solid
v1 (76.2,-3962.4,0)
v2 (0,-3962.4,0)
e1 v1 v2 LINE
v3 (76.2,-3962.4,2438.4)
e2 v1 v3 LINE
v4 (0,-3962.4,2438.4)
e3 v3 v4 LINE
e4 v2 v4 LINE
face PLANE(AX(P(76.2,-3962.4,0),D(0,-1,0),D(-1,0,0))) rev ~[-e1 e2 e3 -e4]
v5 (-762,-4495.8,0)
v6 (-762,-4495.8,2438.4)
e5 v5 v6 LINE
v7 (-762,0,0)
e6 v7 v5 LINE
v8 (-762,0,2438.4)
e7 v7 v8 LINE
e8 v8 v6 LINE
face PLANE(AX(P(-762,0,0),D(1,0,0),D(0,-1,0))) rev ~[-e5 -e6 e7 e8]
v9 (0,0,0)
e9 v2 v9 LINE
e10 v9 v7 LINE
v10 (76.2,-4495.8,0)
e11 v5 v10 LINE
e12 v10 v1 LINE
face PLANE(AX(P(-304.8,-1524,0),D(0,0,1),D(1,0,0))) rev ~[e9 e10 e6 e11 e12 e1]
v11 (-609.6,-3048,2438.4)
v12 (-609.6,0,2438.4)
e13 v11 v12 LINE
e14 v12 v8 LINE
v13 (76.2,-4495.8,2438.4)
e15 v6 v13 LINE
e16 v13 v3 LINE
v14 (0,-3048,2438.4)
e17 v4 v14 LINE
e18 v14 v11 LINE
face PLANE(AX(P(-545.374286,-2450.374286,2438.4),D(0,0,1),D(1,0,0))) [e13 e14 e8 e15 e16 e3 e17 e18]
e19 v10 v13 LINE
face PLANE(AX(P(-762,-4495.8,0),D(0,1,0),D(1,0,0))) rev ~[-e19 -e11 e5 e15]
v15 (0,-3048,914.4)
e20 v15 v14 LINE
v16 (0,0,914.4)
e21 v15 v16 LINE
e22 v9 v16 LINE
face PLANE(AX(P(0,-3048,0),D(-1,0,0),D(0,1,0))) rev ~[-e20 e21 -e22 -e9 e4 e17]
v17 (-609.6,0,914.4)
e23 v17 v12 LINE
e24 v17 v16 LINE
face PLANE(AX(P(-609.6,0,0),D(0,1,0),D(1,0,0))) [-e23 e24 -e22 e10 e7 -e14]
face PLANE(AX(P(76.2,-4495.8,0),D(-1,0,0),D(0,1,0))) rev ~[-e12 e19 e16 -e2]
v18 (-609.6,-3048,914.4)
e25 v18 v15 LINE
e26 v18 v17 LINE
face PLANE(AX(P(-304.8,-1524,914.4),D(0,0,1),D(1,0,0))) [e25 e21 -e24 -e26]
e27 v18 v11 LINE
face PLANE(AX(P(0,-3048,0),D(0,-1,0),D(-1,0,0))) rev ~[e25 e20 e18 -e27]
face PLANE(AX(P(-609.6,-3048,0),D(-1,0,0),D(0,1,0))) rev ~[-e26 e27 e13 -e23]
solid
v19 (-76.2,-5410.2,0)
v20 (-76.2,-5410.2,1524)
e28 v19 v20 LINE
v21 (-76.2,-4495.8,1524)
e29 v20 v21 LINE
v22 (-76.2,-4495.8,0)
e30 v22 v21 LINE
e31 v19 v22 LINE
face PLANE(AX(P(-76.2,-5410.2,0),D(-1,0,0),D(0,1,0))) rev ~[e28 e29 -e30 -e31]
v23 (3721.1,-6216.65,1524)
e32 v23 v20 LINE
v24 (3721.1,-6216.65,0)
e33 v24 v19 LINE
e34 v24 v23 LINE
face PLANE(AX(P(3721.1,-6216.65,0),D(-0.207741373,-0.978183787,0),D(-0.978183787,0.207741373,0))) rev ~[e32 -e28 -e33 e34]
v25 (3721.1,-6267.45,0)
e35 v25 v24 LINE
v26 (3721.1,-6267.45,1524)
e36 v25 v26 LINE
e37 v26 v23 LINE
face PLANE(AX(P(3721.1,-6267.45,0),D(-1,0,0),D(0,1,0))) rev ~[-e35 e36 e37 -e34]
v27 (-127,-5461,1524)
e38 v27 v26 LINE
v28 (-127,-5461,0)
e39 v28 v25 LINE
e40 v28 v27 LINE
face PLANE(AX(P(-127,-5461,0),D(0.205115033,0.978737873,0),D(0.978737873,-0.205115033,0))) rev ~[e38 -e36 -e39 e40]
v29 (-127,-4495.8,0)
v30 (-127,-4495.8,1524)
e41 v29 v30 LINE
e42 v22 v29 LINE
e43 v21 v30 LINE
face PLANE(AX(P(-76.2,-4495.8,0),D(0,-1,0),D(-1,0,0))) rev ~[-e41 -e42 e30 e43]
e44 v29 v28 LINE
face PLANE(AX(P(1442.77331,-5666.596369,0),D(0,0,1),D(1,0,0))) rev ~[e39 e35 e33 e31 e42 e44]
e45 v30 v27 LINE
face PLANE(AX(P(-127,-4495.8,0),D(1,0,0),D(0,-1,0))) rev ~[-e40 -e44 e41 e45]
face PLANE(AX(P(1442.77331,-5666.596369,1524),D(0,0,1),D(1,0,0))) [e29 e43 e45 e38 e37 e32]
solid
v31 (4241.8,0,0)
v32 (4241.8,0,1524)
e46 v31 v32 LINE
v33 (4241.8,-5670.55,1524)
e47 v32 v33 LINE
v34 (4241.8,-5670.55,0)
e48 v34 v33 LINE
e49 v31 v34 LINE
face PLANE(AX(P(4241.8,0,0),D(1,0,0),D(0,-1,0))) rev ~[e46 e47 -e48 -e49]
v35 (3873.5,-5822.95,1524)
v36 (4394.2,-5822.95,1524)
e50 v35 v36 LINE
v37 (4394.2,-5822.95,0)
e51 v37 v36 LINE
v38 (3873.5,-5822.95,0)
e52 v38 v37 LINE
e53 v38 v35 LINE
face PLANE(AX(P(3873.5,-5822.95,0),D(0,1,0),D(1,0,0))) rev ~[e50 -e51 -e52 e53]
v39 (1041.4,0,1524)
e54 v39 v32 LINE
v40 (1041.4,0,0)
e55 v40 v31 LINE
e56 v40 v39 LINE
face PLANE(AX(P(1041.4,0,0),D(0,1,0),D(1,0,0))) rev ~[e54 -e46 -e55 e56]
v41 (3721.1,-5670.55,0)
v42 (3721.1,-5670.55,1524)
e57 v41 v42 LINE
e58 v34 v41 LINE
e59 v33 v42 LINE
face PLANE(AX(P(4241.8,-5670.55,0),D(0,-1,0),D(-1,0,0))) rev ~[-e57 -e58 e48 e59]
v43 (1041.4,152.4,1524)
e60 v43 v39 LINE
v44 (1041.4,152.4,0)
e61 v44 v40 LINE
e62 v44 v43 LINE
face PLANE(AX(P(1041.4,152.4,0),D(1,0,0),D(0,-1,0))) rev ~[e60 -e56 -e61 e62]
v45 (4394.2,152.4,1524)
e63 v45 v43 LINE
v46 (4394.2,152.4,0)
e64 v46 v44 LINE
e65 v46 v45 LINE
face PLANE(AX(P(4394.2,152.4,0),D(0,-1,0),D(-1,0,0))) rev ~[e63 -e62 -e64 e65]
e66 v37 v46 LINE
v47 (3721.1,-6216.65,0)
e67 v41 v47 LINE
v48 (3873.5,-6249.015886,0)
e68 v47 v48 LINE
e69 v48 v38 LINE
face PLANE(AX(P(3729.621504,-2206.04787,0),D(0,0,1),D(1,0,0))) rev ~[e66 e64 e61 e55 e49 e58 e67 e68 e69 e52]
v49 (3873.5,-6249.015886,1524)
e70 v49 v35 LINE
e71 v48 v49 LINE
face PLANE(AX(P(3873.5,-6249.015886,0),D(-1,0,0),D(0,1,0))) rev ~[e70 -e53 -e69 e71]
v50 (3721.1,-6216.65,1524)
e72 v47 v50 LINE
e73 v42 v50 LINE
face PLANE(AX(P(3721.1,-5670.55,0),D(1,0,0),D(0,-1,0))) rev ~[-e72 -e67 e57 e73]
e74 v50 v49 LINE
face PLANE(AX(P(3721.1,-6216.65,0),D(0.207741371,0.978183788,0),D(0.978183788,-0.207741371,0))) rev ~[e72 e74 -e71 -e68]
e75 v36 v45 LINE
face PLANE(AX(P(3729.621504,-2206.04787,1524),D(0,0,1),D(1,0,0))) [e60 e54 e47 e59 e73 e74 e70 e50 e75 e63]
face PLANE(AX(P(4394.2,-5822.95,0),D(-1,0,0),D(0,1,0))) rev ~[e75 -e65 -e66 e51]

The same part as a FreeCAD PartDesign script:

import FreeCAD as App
import Part
import Sketcher
from FreeCAD import Vector
Q = App.Units.Quantity

doc = App.newDocument("Part")
body = doc.addObject("PartDesign::Body", "Body")

# Sketch on XY plane
sketch1 = doc.addObject("Sketcher::SketchObject", "Sketch")
body.addObject(sketch1)
sketch1.AttachmentSupport = (doc.XY_Plane, [""])
sketch1.MapMode = "FlatFace"
sketch1.addGeometry([
    Part.LineSegment(Vector(0, -3962, 0), Vector(0, -3048, 0)),  # 0
    Part.LineSegment(Vector(0, -3048, 0), Vector(-610, -3048, 0)),  # 1
    Part.LineSegment(Vector(-610, -3048, 0), Vector(-610, 0, 0)),  # 2
    Part.LineSegment(Vector(-610, 0, 0), Vector(-762, 0, 0)),  # 3
    Part.LineSegment(Vector(-762, 0, 0), Vector(-762, -4496, 0)),  # 4
    Part.LineSegment(Vector(-762, -4496, 0), Vector(76, -4496, 0)),  # 5
    Part.LineSegment(Vector(76, -4496, 0), Vector(76, -3962, 0)),  # 6
    Part.LineSegment(Vector(76, -3962, 0), Vector(0, -3962, 0)),  # 7
], False)
sketch1.addConstraint([
    Sketcher.Constraint("Coincident", 0, 2, 1, 1),
    Sketcher.Constraint("Coincident", 1, 2, 2, 1),
    Sketcher.Constraint("Coincident", 2, 2, 3, 1),
    Sketcher.Constraint("Coincident", 3, 2, 4, 1),
    Sketcher.Constraint("Coincident", 4, 2, 5, 1),
    Sketcher.Constraint("Coincident", 5, 2, 6, 1),
    Sketcher.Constraint("Coincident", 6, 2, 7, 1),
    Sketcher.Constraint("Coincident", 7, 2, 0, 1),
    Sketcher.Constraint("Vertical", 0),
    Sketcher.Constraint("Horizontal", 1),
    Sketcher.Constraint("Vertical", 2),
    Sketcher.Constraint("Horizontal", 3),
    Sketcher.Constraint("Vertical", 4),
    Sketcher.Constraint("Horizontal", 5),
    Sketcher.Constraint("Vertical", 6),
    Sketcher.Constraint("Horizontal", 7),
    Sketcher.Constraint("PointOnObject", 0, 2, -2),
    Sketcher.Constraint("PointOnObject", 2, 2, -1),
    Sketcher.Constraint("DistanceX", 1, 2, 1, 1, Q("24 in")),
    Sketcher.Constraint("DistanceX", 3, 2, 3, 1, Q("6 in")),
    Sketcher.Constraint("DistanceX", 5, 1, 5, 2, Q("33 in")),
    Sketcher.Constraint("DistanceY", 0, 1, 0, 2, Q("36 in")),
    Sketcher.Constraint("DistanceY", 2, 1, 2, 2, Q("120 in")),
    Sketcher.Constraint("DistanceY", 4, 2, 4, 1, Q("177 in")),
])
pad1 = doc.addObject("PartDesign::Pad", "Pad")
body.addObject(pad1)
pad1.Profile = sketch1
pad1.Length = Q("96 in")

# Sketch on XY plane
sketch2 = doc.addObject("Sketcher::SketchObject", "Sketch001")
body.addObject(sketch2)
sketch2.AttachmentSupport = (doc.XY_Plane, [""])
sketch2.MapMode = "FlatFace"
sketch2.addGeometry([
    Part.LineSegment(Vector(-610, 0, 0), Vector(-610, -3048, 0)),
    Part.LineSegment(Vector(-610, -3048, 0), Vector(0, -3048, 0)),
    Part.LineSegment(Vector(0, -3048, 0), Vector(0, 0, 0)),
    Part.LineSegment(Vector(0, 0, 0), Vector(-610, 0, 0)),
], False)
sketch2.addConstraint([
    Sketcher.Constraint("Coincident", 0, 2, 1, 1),
    Sketcher.Constraint("Coincident", 1, 2, 2, 1),
    Sketcher.Constraint("Coincident", 2, 2, 3, 1),
    Sketcher.Constraint("Coincident", 3, 2, 0, 1),
    Sketcher.Constraint("Vertical", 0),
    Sketcher.Constraint("Horizontal", 1),
    Sketcher.Constraint("Vertical", 2),
    Sketcher.Constraint("Horizontal", 3),
    Sketcher.Constraint("Coincident", 2, 2, -1, 1),
    Sketcher.Constraint("DistanceX", 1, 1, 1, 2, Q("24 in")),
    Sketcher.Constraint("DistanceY", 0, 2, 0, 1, Q("120 in")),
])
pad2 = doc.addObject("PartDesign::Pad", "Pad001")
body.addObject(pad2)
pad2.Profile = sketch2
pad2.Length = Q("36 in")
body2 = doc.addObject("PartDesign::Body", "Body001")

# Sketch on XY plane
sketch3 = doc.addObject("Sketcher::SketchObject", "Sketch002")
body2.addObject(sketch3)
sketch3.AttachmentSupport = (doc.getObject("XY_Plane001"), [""])
sketch3.MapMode = "FlatFace"
sketch3.addGeometry([
    Part.LineSegment(Vector(-76, -4496, 0), Vector(-127, -4496, 0)),  # 0
    Part.LineSegment(Vector(-127, -4496, 0), Vector(-127, -5461, 0)),  # 1
    Part.LineSegment(Vector(-127, -5461, 0), Vector(3721, -6267, 0)),  # 2
    Part.LineSegment(Vector(3721, -6267, 0), Vector(3721, -6217, 0)),  # 3
    Part.LineSegment(Vector(3721, -6217, 0), Vector(-76, -5410, 0)),  # 4
    Part.LineSegment(Vector(-76, -5410, 0), Vector(-76, -4496, 0)),  # 5
], False)
sketch3.addConstraint([
    Sketcher.Constraint("Coincident", 0, 2, 1, 1),
    Sketcher.Constraint("Coincident", 1, 2, 2, 1),
    Sketcher.Constraint("Coincident", 2, 2, 3, 1),
    Sketcher.Constraint("Coincident", 3, 2, 4, 1),
    Sketcher.Constraint("Coincident", 4, 2, 5, 1),
    Sketcher.Constraint("Coincident", 5, 2, 0, 1),
    Sketcher.Constraint("Horizontal", 0),
    Sketcher.Constraint("Vertical", 1),
    Sketcher.Constraint("Vertical", 3),
    Sketcher.Constraint("Vertical", 5),
    Sketcher.Constraint("Equal", 0, 3),
    Sketcher.Constraint("DistanceX", 0, 2, 0, 1, Q("2 in")),
    Sketcher.Constraint("DistanceY", 1, 2, 1, 1, Q("38 in")),
    Sketcher.Constraint("DistanceY", 5, 1, 5, 2, Q("36 in")),
    Sketcher.Constraint("DistanceX", 0, 2, -1, 1, Q("5 in")),
    Sketcher.Constraint("DistanceY", 0, 2, -1, 1, Q("177 in")),
    Sketcher.Constraint("DistanceX", -1, 1, 2, 2, Q("146.5 in")),
    Sketcher.Constraint("DistanceY", 2, 2, -1, 1, Q("246.75 in")),
])
pad3 = doc.addObject("PartDesign::Pad", "Pad002")
body2.addObject(pad3)
pad3.Profile = sketch3
pad3.Length = Q("60 in")
body3 = doc.addObject("PartDesign::Body", "Body002")

# Sketch on XY plane
sketch4 = doc.addObject("Sketcher::SketchObject", "Sketch003")
body3.addObject(sketch4)
sketch4.AttachmentSupport = (doc.getObject("XY_Plane002"), [""])
sketch4.MapMode = "FlatFace"
sketch4.addGeometry([
    Part.LineSegment(Vector(3721, -5671, 0), Vector(3721, -6217, 0)),  # 0
    Part.LineSegment(Vector(3721, -6217, 0), Vector(3874, -6249, 0)),  # 1
    Part.LineSegment(Vector(3874, -6249, 0), Vector(3874, -5823, 0)),  # 2
    Part.LineSegment(Vector(3874, -5823, 0), Vector(4394, -5823, 0)),  # 3
    Part.LineSegment(Vector(4394, -5823, 0), Vector(4394, 152, 0)),  # 4
    Part.LineSegment(Vector(4394, 152, 0), Vector(1041, 152, 0)),  # 5
    Part.LineSegment(Vector(1041, 152, 0), Vector(1041, 0, 0)),  # 6
    Part.LineSegment(Vector(1041, 0, 0), Vector(4242, 0, 0)),  # 7
    Part.LineSegment(Vector(4242, 0, 0), Vector(4242, -5671, 0)),  # 8
    Part.LineSegment(Vector(4242, -5671, 0), Vector(3721, -5671, 0)),  # 9
], False)
sketch4.addConstraint([
    Sketcher.Constraint("Coincident", 0, 2, 1, 1),
    Sketcher.Constraint("Coincident", 1, 2, 2, 1),
    Sketcher.Constraint("Coincident", 2, 2, 3, 1),
    Sketcher.Constraint("Coincident", 3, 2, 4, 1),
    Sketcher.Constraint("Coincident", 4, 2, 5, 1),
    Sketcher.Constraint("Coincident", 5, 2, 6, 1),
    Sketcher.Constraint("Coincident", 6, 2, 7, 1),
    Sketcher.Constraint("Coincident", 7, 2, 8, 1),
    Sketcher.Constraint("Coincident", 8, 2, 9, 1),
    Sketcher.Constraint("Coincident", 9, 2, 0, 1),
    Sketcher.Constraint("Vertical", 0),
    Sketcher.Constraint("Vertical", 2),
    Sketcher.Constraint("Horizontal", 3),
    Sketcher.Constraint("Vertical", 4),
    Sketcher.Constraint("Horizontal", 5),
    Sketcher.Constraint("Vertical", 6),
    Sketcher.Constraint("Horizontal", 7),
    Sketcher.Constraint("Vertical", 8),
    Sketcher.Constraint("Horizontal", 9),
    Sketcher.Constraint("PointOnObject", 6, 2, -1),
    Sketcher.Constraint("Equal", 3, 9),
    Sketcher.Constraint("DistanceX", 5, 2, 5, 1, Q("132 in")),
    Sketcher.Constraint("DistanceX", 7, 1, 7, 2, Q("126 in")),
    Sketcher.Constraint("DistanceY", 6, 2, 6, 1, Q("6 in")),
    Sketcher.Constraint("DistanceX", 3, 1, 3, 2, Q("20.5 in")),
    Sketcher.Constraint("DistanceY", 0, 2, 0, 1, Q("21.5 in")),
    Sketcher.Constraint("DistanceX", -1, 1, 3, 2, Q("173 in")),
    Sketcher.Constraint("DistanceY", 3, 2, 8, 2, Q("6 in")),
    Sketcher.Constraint("DistanceY", 4, 1, 4, 2, Q("235.25 in")),
    Sketcher.Constraint("DistanceY", 2, 1, 2, 2, 426.065886),
])
pad4 = doc.addObject("PartDesign::Pad", "Pad003")
body3.addObject(pad4)
pad4.Profile = sketch4
pad4.Length = Q("60 in")

doc.recompute()
